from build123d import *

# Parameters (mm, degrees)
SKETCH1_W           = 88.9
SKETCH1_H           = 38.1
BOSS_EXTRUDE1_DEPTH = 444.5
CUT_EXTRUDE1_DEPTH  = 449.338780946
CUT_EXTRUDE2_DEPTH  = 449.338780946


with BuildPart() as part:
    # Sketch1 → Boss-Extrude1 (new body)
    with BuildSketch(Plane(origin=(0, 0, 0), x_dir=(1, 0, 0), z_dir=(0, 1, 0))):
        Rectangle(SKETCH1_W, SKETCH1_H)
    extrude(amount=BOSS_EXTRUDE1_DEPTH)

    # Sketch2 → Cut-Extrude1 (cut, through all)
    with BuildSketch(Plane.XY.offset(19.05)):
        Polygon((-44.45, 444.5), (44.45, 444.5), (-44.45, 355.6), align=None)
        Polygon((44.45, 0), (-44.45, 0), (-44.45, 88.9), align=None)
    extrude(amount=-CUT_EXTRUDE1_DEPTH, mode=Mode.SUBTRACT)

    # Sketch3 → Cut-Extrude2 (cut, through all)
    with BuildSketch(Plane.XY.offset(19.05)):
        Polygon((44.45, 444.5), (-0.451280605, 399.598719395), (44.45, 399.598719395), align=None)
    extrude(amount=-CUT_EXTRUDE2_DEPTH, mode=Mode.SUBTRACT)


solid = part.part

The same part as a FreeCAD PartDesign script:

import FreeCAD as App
import Part
import Sketcher
Q = App.Units.Quantity

doc = App.newDocument("Part")
params = doc.addObject("Spreadsheet::Sheet", "Params")
for row, (alias, value) in enumerate([
    ("sketch1_width", "3.5 in"),
    ("sketch1_height", "1.5 in"),
    ("pad1_length", "17.5 in"),
    ("sketch2_width", "3.5 in"),
    ("sketch3_length", "2.5 in"),
], start=1):
    params.set(f"A{row}", alias)
    params.set(f"B{row}", "=" + value)
    params.setAlias(f"B{row}", alias)

body = doc.addObject("PartDesign::Body", "Body")

# Sketch on XZ plane
sketch1 = body.newObject("Sketcher::SketchObject", "Sketch")
sketch1.AttachmentSupport = (doc.getObject("XZ_Plane"), [""])
sketch1.MapMode = "FlatFace"
sketch1.addGeometry(Part.LineSegment(App.Vector(-44.45, -19.05, 0), App.Vector(-44.45, 19.05, 0)), False)
sketch1.addGeometry(Part.LineSegment(App.Vector(-44.45, 19.05, 0), App.Vector(44.45, 19.05, 0)), False)
sketch1.addGeometry(Part.LineSegment(App.Vector(44.45, 19.05, 0), App.Vector(44.45, -19.05, 0)), False)
sketch1.addGeometry(Part.LineSegment(App.Vector(44.45, -19.05, 0), App.Vector(-44.45, -19.05, 0)), False)
sketch1.addConstraint(Sketcher.Constraint("Coincident", 0, 2, 1, 1))
sketch1.addConstraint(Sketcher.Constraint("Coincident", 1, 2, 2, 1))
sketch1.addConstraint(Sketcher.Constraint("Coincident", 2, 2, 3, 1))
sketch1.addConstraint(Sketcher.Constraint("Coincident", 3, 2, 0, 1))
sketch1.addConstraint(Sketcher.Constraint("Vertical", 0))
sketch1.addConstraint(Sketcher.Constraint("Horizontal", 1))
sketch1.addConstraint(Sketcher.Constraint("Vertical", 2))
sketch1.addConstraint(Sketcher.Constraint("Horizontal", 3))
sketch1.addConstraint(Sketcher.Constraint("Symmetric", 0, 2, 2, 2, -1, 1))
sketch1.addConstraint(Sketcher.Constraint("DistanceX", 1, 1, 1, 2, Q("3.5 in")))
sketch1.addConstraint(Sketcher.Constraint("DistanceY", 0, 1, 0, 2, Q("1.5 in")))
sketch1.setExpression("Constraints[9]", "Params.sketch1_width")
sketch1.setExpression("Constraints[10]", "Params.sketch1_height")
pad1 = body.newObject("PartDesign::Pad", "Pad")
pad1.Profile = sketch1
pad1.setExpression("Length", "Params.pad1_length")
pad1.Reversed = True

# Sketch on XY plane
sketch2 = body.newObject("Sketcher::SketchObject", "Sketch001")
sketch2.AttachmentSupport = (doc.getObject("XY_Plane"), [""])
sketch2.MapMode = "FlatFace"
sketch2.AttachmentOffset = App.Placement(App.Vector(0, 0, 0.75 * 25.4), App.Rotation())
sketch2.addGeometry(Part.LineSegment(App.Vector(44.45, 444.5, 0), App.Vector(-44.45, 444.5, 0)), False)
sketch2.addGeometry(Part.LineSegment(App.Vector(-44.45, 444.5, 0), App.Vector(-44.45, 355.6, 0)), False)
sketch2.addGeometry(Part.LineSegment(App.Vector(-44.45, 355.6, 0), App.Vector(44.45, 444.5, 0)), False)
sketch2.addGeometry(Part.LineSegment(App.Vector(-44.45, 0, 0), App.Vector(44.45, 0, 0)), False)
sketch2.addGeometry(Part.LineSegment(App.Vector(44.45, 0, 0), App.Vector(-44.45, 88.9, 0)), False)
sketch2.addGeometry(Part.LineSegment(App.Vector(-44.45, 88.9, 0), App.Vector(-44.45, 0, 0)), False)
sketch2.addConstraint(Sketcher.Constraint("Coincident", 0, 2, 1, 1))
sketch2.addConstraint(Sketcher.Constraint("Coincident", 1, 2, 2, 1))
sketch2.addConstraint(Sketcher.Constraint("Coincident", 2, 2, 0, 1))
sketch2.addConstraint(Sketcher.Constraint("Coincident", 3, 2, 4, 1))
sketch2.addConstraint(Sketcher.Constraint("Coincident", 4, 2, 5, 1))
sketch2.addConstraint(Sketcher.Constraint("Coincident", 5, 2, 3, 1))
sketch2.addConstraint(Sketcher.Constraint("Horizontal", 0))
sketch2.addConstraint(Sketcher.Constraint("Vertical", 1))
sketch2.addConstraint(Sketcher.Constraint("Horizontal", 3))
sketch2.addConstraint(Sketcher.Constraint("Vertical", 5))
sketch2.addConstraint(Sketcher.Constraint("Symmetric", 3, 2, 5, 2, -1, 1))
sketch2.addConstraint(Sketcher.Constraint("Perpendicular", 2, 4))
sketch2.addConstraint(Sketcher.Constraint("Vertical", 2, 2, 3, 2))
sketch2.addConstraint(Sketcher.Constraint("Vertical", 1, 2, 4, 2))
sketch2.addConstraint(Sketcher.Constraint("Equal", 3, 1))
sketch2.addConstraint(Sketcher.Constraint("DistanceX", 0, 2, 0, 1, Q("3.5 in")))
sketch2.addConstraint(Sketcher.Constraint("DistanceY", -1, 1, 1, 2, Q("14 in")))
sketch2.setExpression("Constraints[15]", "Params.sketch2_width")
pocket1 = body.newObject("PartDesign::Pocket", "Pocket")
pocket1.Profile = sketch2
pocket1.Type = "ThroughAll"

# Sketch on XY plane
sketch3 = body.newObject("Sketcher::SketchObject", "Sketch002")
sketch3.AttachmentSupport = (doc.getObject("XY_Plane"), [""])
sketch3.MapMode = "FlatFace"
sketch3.AttachmentOffset = App.Placement(App.Vector(0, 0, 0.75 * 25.4), App.Rotation())
sketch3.addGeometry(Part.LineSegment(App.Vector(44.45, 444.5, 0), App.Vector(-0.451281, 399.598719, 0)), False)
sketch3.addGeometry(Part.LineSegment(App.Vector(-0.451281, 399.598719, 0), App.Vector(44.45, 399.598719, 0)), False)
sketch3.addGeometry(Part.LineSegment(App.Vector(44.45, 399.598719, 0), App.Vector(44.45, 444.5, 0)), False)
sketch3.addConstraint(Sketcher.Constraint("Coincident", 0, 2, 1, 1))
sketch3.addConstraint(Sketcher.Constraint("Coincident", 1, 2, 2, 1))
sketch3.addConstraint(Sketcher.Constraint("Coincident", 2, 2, 0, 1))
sketch3.addConstraint(Sketcher.Constraint("Horizontal", 1))
sketch3.addConstraint(Sketcher.Constraint("Vertical", 2))
sketch3.addConstraint(Sketcher.Constraint("Equal", 1, 2))
sketch3.addConstraint(Sketcher.Constraint("Distance", 0, Q("2.5 in")))
sketch3.addConstraint(Sketcher.Constraint("DistanceY", -1, 1, 2, 2, Q("17.5 in")))
sketch3.addConstraint(Sketcher.Constraint("DistanceX", -1, 1, 1, 2, Q("1.75 in")))
sketch3.setExpression("Constraints[6]", "Params.sketch3_length")
pocket2 = body.newObject("PartDesign::Pocket", "Pocket001")
pocket2.Profile = sketch3
pocket2.Type = "ThroughAll"

doc.recompute()
